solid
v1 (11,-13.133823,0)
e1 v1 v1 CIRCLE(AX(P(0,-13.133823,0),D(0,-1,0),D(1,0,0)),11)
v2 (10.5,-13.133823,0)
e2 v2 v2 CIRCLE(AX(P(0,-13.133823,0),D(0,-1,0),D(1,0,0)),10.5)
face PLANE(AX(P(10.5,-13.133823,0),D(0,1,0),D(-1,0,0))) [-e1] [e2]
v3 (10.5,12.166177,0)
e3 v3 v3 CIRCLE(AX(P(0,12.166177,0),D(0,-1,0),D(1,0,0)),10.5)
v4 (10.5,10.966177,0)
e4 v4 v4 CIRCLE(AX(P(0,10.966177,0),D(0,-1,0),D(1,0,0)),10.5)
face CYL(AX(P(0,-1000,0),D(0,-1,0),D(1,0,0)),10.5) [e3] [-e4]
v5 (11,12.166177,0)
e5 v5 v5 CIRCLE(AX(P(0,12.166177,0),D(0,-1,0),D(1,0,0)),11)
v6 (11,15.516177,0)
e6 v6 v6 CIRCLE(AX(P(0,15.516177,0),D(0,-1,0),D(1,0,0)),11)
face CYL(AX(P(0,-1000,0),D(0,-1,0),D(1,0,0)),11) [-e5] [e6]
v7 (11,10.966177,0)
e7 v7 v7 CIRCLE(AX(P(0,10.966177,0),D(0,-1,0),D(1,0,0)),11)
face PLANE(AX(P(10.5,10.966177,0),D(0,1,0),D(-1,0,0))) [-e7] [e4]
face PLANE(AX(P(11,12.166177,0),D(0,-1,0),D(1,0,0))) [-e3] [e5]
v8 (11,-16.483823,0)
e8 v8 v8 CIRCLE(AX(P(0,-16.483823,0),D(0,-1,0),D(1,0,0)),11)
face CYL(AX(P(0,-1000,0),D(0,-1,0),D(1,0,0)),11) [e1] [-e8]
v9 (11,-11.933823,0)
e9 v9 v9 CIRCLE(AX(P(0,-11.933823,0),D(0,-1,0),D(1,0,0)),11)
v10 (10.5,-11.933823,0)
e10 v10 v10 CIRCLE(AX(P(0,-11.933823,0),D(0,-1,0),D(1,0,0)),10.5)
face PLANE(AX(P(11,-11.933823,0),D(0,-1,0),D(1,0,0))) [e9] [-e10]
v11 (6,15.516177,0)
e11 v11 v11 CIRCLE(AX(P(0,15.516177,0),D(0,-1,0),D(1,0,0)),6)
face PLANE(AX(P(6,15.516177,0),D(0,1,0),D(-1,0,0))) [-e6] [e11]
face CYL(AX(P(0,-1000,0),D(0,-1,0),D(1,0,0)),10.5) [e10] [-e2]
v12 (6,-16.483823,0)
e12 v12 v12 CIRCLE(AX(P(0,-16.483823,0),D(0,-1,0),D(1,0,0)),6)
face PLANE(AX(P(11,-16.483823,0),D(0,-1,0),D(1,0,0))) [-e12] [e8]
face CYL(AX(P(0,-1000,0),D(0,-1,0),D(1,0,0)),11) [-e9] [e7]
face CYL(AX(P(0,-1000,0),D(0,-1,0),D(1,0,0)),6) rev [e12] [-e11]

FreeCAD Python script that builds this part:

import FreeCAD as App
import Part
import Sketcher
from FreeCAD import Vector

doc = App.newDocument("Part")
body = doc.addObject("PartDesign::Body", "Body")

# Sketch on XY plane
sketch1 = doc.addObject("Sketcher::SketchObject", "Sketch")
body.addObject(sketch1)
sketch1.AttachmentSupport = (doc.XY_Plane, [""])
sketch1.MapMode = "FlatFace"
sketch1.addGeometry([
    Part.LineSegment(Vector(6, 15.5, 0), Vector(6, -16.5, 0)),  # 0
    Part.LineSegment(Vector(6, -16.5, 0), Vector(11, -16.5, 0)),  # 1
    Part.LineSegment(Vector(11, -16.5, 0), Vector(11, -13.1, 0)),  # 2
    Part.LineSegment(Vector(11, -13.1, 0), Vector(10.5, -13.1, 0)),  # 3
    Part.LineSegment(Vector(10.5, -13.1, 0), Vector(10.5, -11.9, 0)),  # 4
    Part.LineSegment(Vector(10.5, -11.9, 0), Vector(11, -11.9, 0)),  # 5
    Part.LineSegment(Vector(11, -11.9, 0), Vector(11, 11, 0)),  # 6
    Part.LineSegment(Vector(11, 11, 0), Vector(10.5, 11, 0)),  # 7
    Part.LineSegment(Vector(10.5, 11, 0), Vector(10.5, 12.2, 0)),  # 8
    Part.LineSegment(Vector(10.5, 12.2, 0), Vector(11, 12.2, 0)),  # 9
    Part.LineSegment(Vector(11, 12.2, 0), Vector(11, 15.5, 0)),  # 10
    Part.LineSegment(Vector(11, 15.5, 0), Vector(6, 15.5, 0)),  # 11
], False)
sketch1.addConstraint([
    Sketcher.Constraint("Coincident", 0, 2, 1, 1),
    Sketcher.Constraint("Coincident", 1, 2, 2, 1),
    Sketcher.Constraint("Coincident", 2, 2, 3, 1),
    Sketcher.Constraint("Coincident", 3, 2, 4, 1),
    Sketcher.Constraint("Coincident", 4, 2, 5, 1),
    Sketcher.Constraint("Coincident", 5, 2, 6, 1),
    Sketcher.Constraint("Coincident", 6, 2, 7, 1),
    Sketcher.Constraint("Coincident", 7, 2, 8, 1),
    Sketcher.Constraint("Coincident", 8, 2, 9, 1),
    Sketcher.Constraint("Coincident", 9, 2, 10, 1),
    Sketcher.Constraint("Coincident", 10, 2, 11, 1),
    Sketcher.Constraint("Coincident", 11, 2, 0, 1),
    Sketcher.Constraint("Vertical", 0),
    Sketcher.Constraint("Horizontal", 1),
    Sketcher.Constraint("Vertical", 2),
    Sketcher.Constraint("Horizontal", 3),
    Sketcher.Constraint("Vertical", 4),
    Sketcher.Constraint("Horizontal", 5),
    Sketcher.Constraint("Vertical", 6),
    Sketcher.Constraint("Horizontal", 7),
    Sketcher.Constraint("Vertical", 8),
    Sketcher.Constraint("Horizontal", 9),
    Sketcher.Constraint("Vertical", 10),
    Sketcher.Constraint("Horizontal", 11),
    Sketcher.Constraint("Vertical", 2, 2, 5, 2),
    Sketcher.Constraint("Vertical", 4, 2, 7, 2),
    Sketcher.Constraint("Vertical", 6, 2, 9, 2),
    Sketcher.Constraint("Equal", 4, 8),
    Sketcher.Constraint("Equal", 2, 10),
    Sketcher.Constraint("DistanceX", 1, 1, 1, 2, 5.0),
    Sketcher.Constraint("DistanceY", 0, 2, 0, 1, 32.0),
    Sketcher.Constraint("DistanceX", 3, 2, 3, 1, 0.5),
    Sketcher.Constraint("DistanceY", 4, 1, 4, 2, 1.2),
    Sketcher.Constraint("DistanceY", 6, 1, 6, 2, 22.9),
    Sketcher.Constraint("DistanceX", -1, 1, 0, 2, 6.0),
    Sketcher.Constraint("DistanceY", 0, 2, -1, 1, 16.483823),
])
revolution = doc.addObject("PartDesign::Revolution", "Revolution")
body.addObject(revolution)
revolution.Profile = sketch1
revolution.ReferenceAxis = (sketch1, ["V_Axis"])
revolution.Angle = 360

doc.recompute()
